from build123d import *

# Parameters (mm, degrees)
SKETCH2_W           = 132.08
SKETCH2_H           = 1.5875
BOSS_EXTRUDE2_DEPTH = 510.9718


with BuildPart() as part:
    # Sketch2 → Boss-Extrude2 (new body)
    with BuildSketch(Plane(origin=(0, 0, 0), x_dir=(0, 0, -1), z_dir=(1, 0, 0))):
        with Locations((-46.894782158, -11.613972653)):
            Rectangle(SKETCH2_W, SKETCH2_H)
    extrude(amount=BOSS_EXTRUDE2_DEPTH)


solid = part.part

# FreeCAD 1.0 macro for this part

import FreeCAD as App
import Part
import Sketcher
from FreeCAD import Vector
Q = App.Units.Quantity


def add_polygon(sketch, points):
    """Adds a closed chain of lines whose ends are joined by coincident constraints."""
    first, n = sketch.GeometryCount, len(points)
    for a, b in zip(points, points[1:] + points[:1]):
        sketch.addGeometry(Part.LineSegment(App.Vector(*a, 0), App.Vector(*b, 0)), False)
    for i in range(n):
        sketch.addConstraint(Sketcher.Constraint("Coincident", first + i, 2, first + (i + 1) % n, 1))

doc = App.newDocument("Part")
body = doc.addObject("PartDesign::Body", "Body")

sketch1 = body.newObject("Sketcher::SketchObject", "Sketch")
sketch1.AttachmentSupport = (doc.getObject("YZ_Plane"), [""])
sketch1.MapMode = "FlatFace"
add_polygon(sketch1, [(-10.820223, 112.934782), (-12.407723, 112.934782), (-12.407723, -19.145218), (-10.820223, -19.145218)])
sketch1.addConstraint([
    Sketcher.Constraint("Horizontal", 0),
    Sketcher.Constraint("Vertical", 1),
    Sketcher.Constraint("Horizontal", 2),
    Sketcher.Constraint("Vertical", 3),
    Sketcher.Constraint("DistanceY", 1, 2, 1, 1, Q("5.2 in")),
    Sketcher.Constraint("DistanceX", 0, 2, 0, 1, Q("0.0625 in")),
    Sketcher.Constraint("DistanceX", 0, 2, -1, 1, Q("12.407723 mm")),
    Sketcher.Constraint("DistanceY", -1, 1, 0, 2, Q("112.934782 mm")),
])
pad1 = body.newObject("PartDesign::Pad", "Pad")
pad1.Profile = sketch1
pad1.Length = Q("20.117 in")

doc.recompute()
